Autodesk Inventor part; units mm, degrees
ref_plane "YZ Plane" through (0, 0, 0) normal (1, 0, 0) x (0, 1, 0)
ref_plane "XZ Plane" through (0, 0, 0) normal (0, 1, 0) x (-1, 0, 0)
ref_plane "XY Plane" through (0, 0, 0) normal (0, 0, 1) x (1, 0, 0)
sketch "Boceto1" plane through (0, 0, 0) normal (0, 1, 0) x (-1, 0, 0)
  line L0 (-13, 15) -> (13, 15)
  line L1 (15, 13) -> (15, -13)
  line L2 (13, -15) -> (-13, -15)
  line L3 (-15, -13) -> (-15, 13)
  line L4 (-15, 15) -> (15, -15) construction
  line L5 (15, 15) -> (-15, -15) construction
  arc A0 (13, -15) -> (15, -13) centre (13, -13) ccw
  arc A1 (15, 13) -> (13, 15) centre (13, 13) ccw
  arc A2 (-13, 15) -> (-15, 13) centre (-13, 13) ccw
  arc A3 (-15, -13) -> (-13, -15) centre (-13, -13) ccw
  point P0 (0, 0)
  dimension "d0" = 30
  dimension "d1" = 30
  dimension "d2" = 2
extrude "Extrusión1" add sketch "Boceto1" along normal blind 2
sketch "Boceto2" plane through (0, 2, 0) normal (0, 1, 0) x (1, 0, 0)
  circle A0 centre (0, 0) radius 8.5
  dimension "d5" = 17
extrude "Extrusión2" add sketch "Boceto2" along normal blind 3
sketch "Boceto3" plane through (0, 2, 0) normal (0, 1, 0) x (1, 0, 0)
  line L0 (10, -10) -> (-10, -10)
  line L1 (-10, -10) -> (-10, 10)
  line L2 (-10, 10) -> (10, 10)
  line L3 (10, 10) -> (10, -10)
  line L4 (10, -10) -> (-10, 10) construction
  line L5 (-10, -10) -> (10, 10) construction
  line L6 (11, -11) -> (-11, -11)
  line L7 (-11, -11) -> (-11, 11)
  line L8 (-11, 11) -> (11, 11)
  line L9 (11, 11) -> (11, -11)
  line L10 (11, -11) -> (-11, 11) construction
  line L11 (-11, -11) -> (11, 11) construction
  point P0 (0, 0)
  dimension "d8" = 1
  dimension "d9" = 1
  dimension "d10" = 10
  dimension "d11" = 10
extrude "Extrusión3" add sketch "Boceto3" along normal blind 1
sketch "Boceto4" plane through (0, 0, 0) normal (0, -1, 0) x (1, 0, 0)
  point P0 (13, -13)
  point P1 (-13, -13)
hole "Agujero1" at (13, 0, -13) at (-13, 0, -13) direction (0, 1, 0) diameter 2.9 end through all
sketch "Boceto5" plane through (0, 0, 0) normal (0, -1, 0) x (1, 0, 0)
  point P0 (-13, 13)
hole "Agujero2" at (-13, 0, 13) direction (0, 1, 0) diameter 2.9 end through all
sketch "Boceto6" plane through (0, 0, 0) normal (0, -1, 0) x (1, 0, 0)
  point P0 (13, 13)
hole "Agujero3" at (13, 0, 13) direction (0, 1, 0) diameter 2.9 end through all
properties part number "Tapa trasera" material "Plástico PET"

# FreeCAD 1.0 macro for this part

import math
import FreeCAD as App
import Part
import Sketcher

V = App.Vector


def add_polygon(sketch, points):
    """Adds a closed chain of lines whose ends are joined by coincident constraints."""
    first, n = sketch.GeometryCount, len(points)
    for a, b in zip(points, points[1:] + points[:1]):
        sketch.addGeometry(Part.LineSegment(App.Vector(*a, 0), App.Vector(*b, 0)), False)
    for i in range(n):
        sketch.addConstraint(Sketcher.Constraint("Coincident", first + i, 2, first + (i + 1) % n, 1))

doc = App.newDocument("Part")
params = doc.addObject("Spreadsheet::Sheet", "Params")
for row, (alias, value) in enumerate([
    ("sketch1_radius", "2 mm"),
    ("sketch1_width", "26 mm"),
    ("pad1_length", "2 mm"),
    ("sketch2_diameter", "17 mm"),
    ("pad2_length", "3 mm"),
    ("pad3_length", "1 mm"),
    ("sketch4_diameter", "2.9 mm"),
    ("hole_diameter", "2.9 mm"),
    ("sketch5_diameter", "2.9 mm"),
    ("hole2_diameter", "2.9 mm"),
    ("sketch6_diameter", "2.9 mm"),
    ("hole3_diameter", "2.9 mm"),
], start=1):
    params.set(f"A{row}", alias)
    params.set(f"B{row}", "=" + value)
    params.setAlias(f"B{row}", alias)

body = doc.addObject("PartDesign::Body", "Body")

# Sketch on XZ plane
sketch1 = doc.addObject("Sketcher::SketchObject", "Sketch")
body.addObject(sketch1)
sketch1.AttachmentSupport = (doc.XZ_Plane, [""])
sketch1.MapMode = "FlatFace"
sketch1.addGeometry(Part.LineSegment(V(-13, 15, 0), V(13, 15, 0)), False)
sketch1.addGeometry(Part.ArcOfCircle(Part.Circle(V(13, 13, 0), V(0, 0, 1), 2), math.radians(0), math.radians(90)), False)
sketch1.addGeometry(Part.LineSegment(V(15, 13, 0), V(15, -13, 0)), False)
sketch1.addGeometry(Part.ArcOfCircle(Part.Circle(V(13, -13, 0), V(0, 0, 1), 2), math.radians(-90), math.radians(0)), False)
sketch1.addGeometry(Part.LineSegment(V(13, -15, 0), V(-13, -15, 0)), False)
sketch1.addGeometry(Part.ArcOfCircle(Part.Circle(V(-13, -13, 0), V(0, 0, 1), 2), math.radians(180), math.radians(270)), False)
sketch1.addGeometry(Part.LineSegment(V(-15, -13, 0), V(-15, 13, 0)), False)
sketch1.addGeometry(Part.ArcOfCircle(Part.Circle(V(-13, 13, 0), V(0, 0, 1), 2), math.radians(90), math.radians(180)), False)
sketch1.addConstraint(Sketcher.Constraint("Tangent", 0, 2, 1, 2))
sketch1.addConstraint(Sketcher.Constraint("Tangent", 1, 1, 2, 1))
sketch1.addConstraint(Sketcher.Constraint("Tangent", 2, 2, 3, 2))
sketch1.addConstraint(Sketcher.Constraint("Tangent", 3, 1, 4, 1))
sketch1.addConstraint(Sketcher.Constraint("Tangent", 4, 2, 5, 2))
sketch1.addConstraint(Sketcher.Constraint("Tangent", 5, 1, 6, 1))
sketch1.addConstraint(Sketcher.Constraint("Tangent", 6, 2, 7, 2))
sketch1.addConstraint(Sketcher.Constraint("Tangent", 7, 1, 0, 1))
sketch1.addConstraint(Sketcher.Constraint("Horizontal", 0))
sketch1.addConstraint(Sketcher.Constraint("Vertical", 2))
sketch1.addConstraint(Sketcher.Constraint("Horizontal", 4))
sketch1.addConstraint(Sketcher.Constraint("Vertical", 6))
sketch1.addConstraint(Sketcher.Constraint("Equal", 1, 3))
sketch1.addConstraint(Sketcher.Constraint("Equal", 3, 5))
sketch1.addConstraint(Sketcher.Constraint("Equal", 5, 7))
sketch1.addConstraint(Sketcher.Constraint("Symmetric", 1, 3, 5, 3, -1, 1))
sketch1.addConstraint(Sketcher.Constraint("Equal", 4, 2))
sketch1.addConstraint(Sketcher.Constraint("Radius", 1, 2.0))
sketch1.addConstraint(Sketcher.Constraint("DistanceX", 0, 1, 0, 2, 26.0))
sketch1.setExpression("Constraints[17]", "Params.sketch1_radius")
sketch1.setExpression("Constraints[18]", "Params.sketch1_width")
pad1 = doc.addObject("PartDesign::Pad", "Pad")
body.addObject(pad1)
pad1.Profile = sketch1
pad1.setExpression("Length", "Params.pad1_length")
pad1.Reversed = True

# Sketch on XZ plane
sketch2 = doc.addObject("Sketcher::SketchObject", "Sketch001")
body.addObject(sketch2)
sketch2.AttachmentSupport = (doc.XZ_Plane, [""])
sketch2.MapMode = "FlatFace"
sketch2.AttachmentOffset = App.Placement(V(0, 0, -2), App.Rotation())
sketch2.addGeometry(Part.Circle(V(0, 0, 0), V(0, 0, 1), 8), False)
sketch2.addConstraint(Sketcher.Constraint("Coincident", 0, 3, -1, 1))
sketch2.addConstraint(Sketcher.Constraint("Diameter", 0, 17.0))
sketch2.setExpression("Constraints[1]", "Params.sketch2_diameter")
pad2 = doc.addObject("PartDesign::Pad", "Pad001")
body.addObject(pad2)
pad2.Profile = sketch2
pad2.setExpression("Length", "Params.pad2_length")
pad2.Reversed = True

# Sketch on XZ plane
sketch3 = doc.addObject("Sketcher::SketchObject", "Sketch002")
body.addObject(sketch3)
sketch3.AttachmentSupport = (doc.XZ_Plane, [""])
sketch3.MapMode = "FlatFace"
sketch3.AttachmentOffset = App.Placement(V(0, 0, -2), App.Rotation())
add_polygon(sketch3, [(-11, 11), (11, 11), (11, -11), (-11, -11)])  # lines 0-3
add_polygon(sketch3, [(10, -10), (10, 10), (-10, 10), (-10, -10)])  # lines 4-7
sketch3.addConstraint(Sketcher.Constraint("Horizontal", 0))
sketch3.addConstraint(Sketcher.Constraint("Vertical", 1))
sketch3.addConstraint(Sketcher.Constraint("Horizontal", 2))
sketch3.addConstraint(Sketcher.Constraint("Vertical", 3))
sketch3.addConstraint(Sketcher.Constraint("Vertical", 4))
sketch3.addConstraint(Sketcher.Constraint("Horizontal", 5))
sketch3.addConstraint(Sketcher.Constraint("Vertical", 6))
sketch3.addConstraint(Sketcher.Constraint("Horizontal", 7))
sketch3.addConstraint(Sketcher.Constraint("Symmetric", 0, 2, 2, 2, -1, 1))
sketch3.addConstraint(Sketcher.Constraint("Symmetric", 4, 2, 6, 2, -1, 1))
sketch3.addConstraint(Sketcher.Constraint("Equal", 2, 1))
sketch3.addConstraint(Sketcher.Constraint("Equal", 7, 4))
sketch3.addConstraint(Sketcher.Constraint("DistanceX", -1, 1, 4, 2, 10.0))
sketch3.addConstraint(Sketcher.Constraint("DistanceX", 4, 2, 0, 2, 1.0))
pad3 = doc.addObject("PartDesign::Pad", "Pad002")
body.addObject(pad3)
pad3.Profile = sketch3
pad3.setExpression("Length", "Params.pad3_length")
pad3.Reversed = True

# Sketch on XZ plane
sketch4 = doc.addObject("Sketcher::SketchObject", "Sketch003")
body.addObject(sketch4)
sketch4.AttachmentSupport = (doc.XZ_Plane, [""])
sketch4.MapMode = "FlatFace"
sketch4.addGeometry(Part.Circle(V(13, -13, 0), V(0, 0, 1), 1.4), False)
sketch4.addGeometry(Part.Circle(V(-13, -13, 0), V(0, 0, 1), 1.4), False)
sketch4.addConstraint(Sketcher.Constraint("Equal", 0, 1))
sketch4.addConstraint(Sketcher.Constraint("Symmetric", 0, 3, 1, 3, -2))
sketch4.addConstraint(Sketcher.Constraint("Diameter", 0, 2.9))
sketch4.addConstraint(Sketcher.Constraint("DistanceX", -1, 1, 0, 3, 13.0))
sketch4.addConstraint(Sketcher.Constraint("DistanceY", 0, 3, -1, 1, 13.0))
sketch4.setExpression("Constraints[2]", "Params.sketch4_diameter")
doc.recompute()
hole = doc.addObject("PartDesign::Hole", "Hole")
body.addObject(hole)
hole.Profile = sketch4
hole.ThreadType = "None"
hole.setExpression("Diameter", "Params.hole_diameter")
hole.DepthType = "ThroughAll"

# Sketch on XZ plane
sketch5 = doc.addObject("Sketcher::SketchObject", "Sketch004")
body.addObject(sketch5)
sketch5.AttachmentSupport = (doc.XZ_Plane, [""])
sketch5.MapMode = "FlatFace"
sketch5.addGeometry(Part.Circle(V(-13, 13, 0), V(0, 0, 1), 1.4), False)
sketch5.addConstraint(Sketcher.Constraint("Diameter", 0, 2.9))
sketch5.addConstraint(Sketcher.Constraint("DistanceX", 0, 3, -1, 1, 13.0))
sketch5.addConstraint(Sketcher.Constraint("DistanceY", -1, 1, 0, 3, 13.0))
sketch5.setExpression("Constraints[0]", "Params.sketch5_diameter")
doc.recompute()
hole2 = doc.addObject("PartDesign::Hole", "Hole001")
body.addObject(hole2)
hole2.Profile = sketch5
hole2.ThreadType = "None"
hole2.setExpression("Diameter", "Params.hole2_diameter")
hole2.DepthType = "ThroughAll"

# Sketch on XZ plane
sketch6 = doc.addObject("Sketcher::SketchObject", "Sketch005")
body.addObject(sketch6)
sketch6.AttachmentSupport = (doc.XZ_Plane, [""])
sketch6.MapMode = "FlatFace"
sketch6.addGeometry(Part.Circle(V(13, 13, 0), V(0, 0, 1), 1.4), False)
sketch6.addConstraint(Sketcher.Constraint("Diameter", 0, 2.9))
sketch6.addConstraint(Sketcher.Constraint("DistanceX", -1, 1, 0, 3, 13.0))
sketch6.addConstraint(Sketcher.Constraint("DistanceY", -1, 1, 0, 3, 13.0))
sketch6.setExpression("Constraints[0]", "Params.sketch6_diameter")
doc.recompute()
hole3 = doc.addObject("PartDesign::Hole", "Hole002")
body.addObject(hole3)
hole3.Profile = sketch6
hole3.ThreadType = "None"
hole3.setExpression("Diameter", "Params.hole3_diameter")
hole3.DepthType = "ThroughAll"

doc.recompute()
